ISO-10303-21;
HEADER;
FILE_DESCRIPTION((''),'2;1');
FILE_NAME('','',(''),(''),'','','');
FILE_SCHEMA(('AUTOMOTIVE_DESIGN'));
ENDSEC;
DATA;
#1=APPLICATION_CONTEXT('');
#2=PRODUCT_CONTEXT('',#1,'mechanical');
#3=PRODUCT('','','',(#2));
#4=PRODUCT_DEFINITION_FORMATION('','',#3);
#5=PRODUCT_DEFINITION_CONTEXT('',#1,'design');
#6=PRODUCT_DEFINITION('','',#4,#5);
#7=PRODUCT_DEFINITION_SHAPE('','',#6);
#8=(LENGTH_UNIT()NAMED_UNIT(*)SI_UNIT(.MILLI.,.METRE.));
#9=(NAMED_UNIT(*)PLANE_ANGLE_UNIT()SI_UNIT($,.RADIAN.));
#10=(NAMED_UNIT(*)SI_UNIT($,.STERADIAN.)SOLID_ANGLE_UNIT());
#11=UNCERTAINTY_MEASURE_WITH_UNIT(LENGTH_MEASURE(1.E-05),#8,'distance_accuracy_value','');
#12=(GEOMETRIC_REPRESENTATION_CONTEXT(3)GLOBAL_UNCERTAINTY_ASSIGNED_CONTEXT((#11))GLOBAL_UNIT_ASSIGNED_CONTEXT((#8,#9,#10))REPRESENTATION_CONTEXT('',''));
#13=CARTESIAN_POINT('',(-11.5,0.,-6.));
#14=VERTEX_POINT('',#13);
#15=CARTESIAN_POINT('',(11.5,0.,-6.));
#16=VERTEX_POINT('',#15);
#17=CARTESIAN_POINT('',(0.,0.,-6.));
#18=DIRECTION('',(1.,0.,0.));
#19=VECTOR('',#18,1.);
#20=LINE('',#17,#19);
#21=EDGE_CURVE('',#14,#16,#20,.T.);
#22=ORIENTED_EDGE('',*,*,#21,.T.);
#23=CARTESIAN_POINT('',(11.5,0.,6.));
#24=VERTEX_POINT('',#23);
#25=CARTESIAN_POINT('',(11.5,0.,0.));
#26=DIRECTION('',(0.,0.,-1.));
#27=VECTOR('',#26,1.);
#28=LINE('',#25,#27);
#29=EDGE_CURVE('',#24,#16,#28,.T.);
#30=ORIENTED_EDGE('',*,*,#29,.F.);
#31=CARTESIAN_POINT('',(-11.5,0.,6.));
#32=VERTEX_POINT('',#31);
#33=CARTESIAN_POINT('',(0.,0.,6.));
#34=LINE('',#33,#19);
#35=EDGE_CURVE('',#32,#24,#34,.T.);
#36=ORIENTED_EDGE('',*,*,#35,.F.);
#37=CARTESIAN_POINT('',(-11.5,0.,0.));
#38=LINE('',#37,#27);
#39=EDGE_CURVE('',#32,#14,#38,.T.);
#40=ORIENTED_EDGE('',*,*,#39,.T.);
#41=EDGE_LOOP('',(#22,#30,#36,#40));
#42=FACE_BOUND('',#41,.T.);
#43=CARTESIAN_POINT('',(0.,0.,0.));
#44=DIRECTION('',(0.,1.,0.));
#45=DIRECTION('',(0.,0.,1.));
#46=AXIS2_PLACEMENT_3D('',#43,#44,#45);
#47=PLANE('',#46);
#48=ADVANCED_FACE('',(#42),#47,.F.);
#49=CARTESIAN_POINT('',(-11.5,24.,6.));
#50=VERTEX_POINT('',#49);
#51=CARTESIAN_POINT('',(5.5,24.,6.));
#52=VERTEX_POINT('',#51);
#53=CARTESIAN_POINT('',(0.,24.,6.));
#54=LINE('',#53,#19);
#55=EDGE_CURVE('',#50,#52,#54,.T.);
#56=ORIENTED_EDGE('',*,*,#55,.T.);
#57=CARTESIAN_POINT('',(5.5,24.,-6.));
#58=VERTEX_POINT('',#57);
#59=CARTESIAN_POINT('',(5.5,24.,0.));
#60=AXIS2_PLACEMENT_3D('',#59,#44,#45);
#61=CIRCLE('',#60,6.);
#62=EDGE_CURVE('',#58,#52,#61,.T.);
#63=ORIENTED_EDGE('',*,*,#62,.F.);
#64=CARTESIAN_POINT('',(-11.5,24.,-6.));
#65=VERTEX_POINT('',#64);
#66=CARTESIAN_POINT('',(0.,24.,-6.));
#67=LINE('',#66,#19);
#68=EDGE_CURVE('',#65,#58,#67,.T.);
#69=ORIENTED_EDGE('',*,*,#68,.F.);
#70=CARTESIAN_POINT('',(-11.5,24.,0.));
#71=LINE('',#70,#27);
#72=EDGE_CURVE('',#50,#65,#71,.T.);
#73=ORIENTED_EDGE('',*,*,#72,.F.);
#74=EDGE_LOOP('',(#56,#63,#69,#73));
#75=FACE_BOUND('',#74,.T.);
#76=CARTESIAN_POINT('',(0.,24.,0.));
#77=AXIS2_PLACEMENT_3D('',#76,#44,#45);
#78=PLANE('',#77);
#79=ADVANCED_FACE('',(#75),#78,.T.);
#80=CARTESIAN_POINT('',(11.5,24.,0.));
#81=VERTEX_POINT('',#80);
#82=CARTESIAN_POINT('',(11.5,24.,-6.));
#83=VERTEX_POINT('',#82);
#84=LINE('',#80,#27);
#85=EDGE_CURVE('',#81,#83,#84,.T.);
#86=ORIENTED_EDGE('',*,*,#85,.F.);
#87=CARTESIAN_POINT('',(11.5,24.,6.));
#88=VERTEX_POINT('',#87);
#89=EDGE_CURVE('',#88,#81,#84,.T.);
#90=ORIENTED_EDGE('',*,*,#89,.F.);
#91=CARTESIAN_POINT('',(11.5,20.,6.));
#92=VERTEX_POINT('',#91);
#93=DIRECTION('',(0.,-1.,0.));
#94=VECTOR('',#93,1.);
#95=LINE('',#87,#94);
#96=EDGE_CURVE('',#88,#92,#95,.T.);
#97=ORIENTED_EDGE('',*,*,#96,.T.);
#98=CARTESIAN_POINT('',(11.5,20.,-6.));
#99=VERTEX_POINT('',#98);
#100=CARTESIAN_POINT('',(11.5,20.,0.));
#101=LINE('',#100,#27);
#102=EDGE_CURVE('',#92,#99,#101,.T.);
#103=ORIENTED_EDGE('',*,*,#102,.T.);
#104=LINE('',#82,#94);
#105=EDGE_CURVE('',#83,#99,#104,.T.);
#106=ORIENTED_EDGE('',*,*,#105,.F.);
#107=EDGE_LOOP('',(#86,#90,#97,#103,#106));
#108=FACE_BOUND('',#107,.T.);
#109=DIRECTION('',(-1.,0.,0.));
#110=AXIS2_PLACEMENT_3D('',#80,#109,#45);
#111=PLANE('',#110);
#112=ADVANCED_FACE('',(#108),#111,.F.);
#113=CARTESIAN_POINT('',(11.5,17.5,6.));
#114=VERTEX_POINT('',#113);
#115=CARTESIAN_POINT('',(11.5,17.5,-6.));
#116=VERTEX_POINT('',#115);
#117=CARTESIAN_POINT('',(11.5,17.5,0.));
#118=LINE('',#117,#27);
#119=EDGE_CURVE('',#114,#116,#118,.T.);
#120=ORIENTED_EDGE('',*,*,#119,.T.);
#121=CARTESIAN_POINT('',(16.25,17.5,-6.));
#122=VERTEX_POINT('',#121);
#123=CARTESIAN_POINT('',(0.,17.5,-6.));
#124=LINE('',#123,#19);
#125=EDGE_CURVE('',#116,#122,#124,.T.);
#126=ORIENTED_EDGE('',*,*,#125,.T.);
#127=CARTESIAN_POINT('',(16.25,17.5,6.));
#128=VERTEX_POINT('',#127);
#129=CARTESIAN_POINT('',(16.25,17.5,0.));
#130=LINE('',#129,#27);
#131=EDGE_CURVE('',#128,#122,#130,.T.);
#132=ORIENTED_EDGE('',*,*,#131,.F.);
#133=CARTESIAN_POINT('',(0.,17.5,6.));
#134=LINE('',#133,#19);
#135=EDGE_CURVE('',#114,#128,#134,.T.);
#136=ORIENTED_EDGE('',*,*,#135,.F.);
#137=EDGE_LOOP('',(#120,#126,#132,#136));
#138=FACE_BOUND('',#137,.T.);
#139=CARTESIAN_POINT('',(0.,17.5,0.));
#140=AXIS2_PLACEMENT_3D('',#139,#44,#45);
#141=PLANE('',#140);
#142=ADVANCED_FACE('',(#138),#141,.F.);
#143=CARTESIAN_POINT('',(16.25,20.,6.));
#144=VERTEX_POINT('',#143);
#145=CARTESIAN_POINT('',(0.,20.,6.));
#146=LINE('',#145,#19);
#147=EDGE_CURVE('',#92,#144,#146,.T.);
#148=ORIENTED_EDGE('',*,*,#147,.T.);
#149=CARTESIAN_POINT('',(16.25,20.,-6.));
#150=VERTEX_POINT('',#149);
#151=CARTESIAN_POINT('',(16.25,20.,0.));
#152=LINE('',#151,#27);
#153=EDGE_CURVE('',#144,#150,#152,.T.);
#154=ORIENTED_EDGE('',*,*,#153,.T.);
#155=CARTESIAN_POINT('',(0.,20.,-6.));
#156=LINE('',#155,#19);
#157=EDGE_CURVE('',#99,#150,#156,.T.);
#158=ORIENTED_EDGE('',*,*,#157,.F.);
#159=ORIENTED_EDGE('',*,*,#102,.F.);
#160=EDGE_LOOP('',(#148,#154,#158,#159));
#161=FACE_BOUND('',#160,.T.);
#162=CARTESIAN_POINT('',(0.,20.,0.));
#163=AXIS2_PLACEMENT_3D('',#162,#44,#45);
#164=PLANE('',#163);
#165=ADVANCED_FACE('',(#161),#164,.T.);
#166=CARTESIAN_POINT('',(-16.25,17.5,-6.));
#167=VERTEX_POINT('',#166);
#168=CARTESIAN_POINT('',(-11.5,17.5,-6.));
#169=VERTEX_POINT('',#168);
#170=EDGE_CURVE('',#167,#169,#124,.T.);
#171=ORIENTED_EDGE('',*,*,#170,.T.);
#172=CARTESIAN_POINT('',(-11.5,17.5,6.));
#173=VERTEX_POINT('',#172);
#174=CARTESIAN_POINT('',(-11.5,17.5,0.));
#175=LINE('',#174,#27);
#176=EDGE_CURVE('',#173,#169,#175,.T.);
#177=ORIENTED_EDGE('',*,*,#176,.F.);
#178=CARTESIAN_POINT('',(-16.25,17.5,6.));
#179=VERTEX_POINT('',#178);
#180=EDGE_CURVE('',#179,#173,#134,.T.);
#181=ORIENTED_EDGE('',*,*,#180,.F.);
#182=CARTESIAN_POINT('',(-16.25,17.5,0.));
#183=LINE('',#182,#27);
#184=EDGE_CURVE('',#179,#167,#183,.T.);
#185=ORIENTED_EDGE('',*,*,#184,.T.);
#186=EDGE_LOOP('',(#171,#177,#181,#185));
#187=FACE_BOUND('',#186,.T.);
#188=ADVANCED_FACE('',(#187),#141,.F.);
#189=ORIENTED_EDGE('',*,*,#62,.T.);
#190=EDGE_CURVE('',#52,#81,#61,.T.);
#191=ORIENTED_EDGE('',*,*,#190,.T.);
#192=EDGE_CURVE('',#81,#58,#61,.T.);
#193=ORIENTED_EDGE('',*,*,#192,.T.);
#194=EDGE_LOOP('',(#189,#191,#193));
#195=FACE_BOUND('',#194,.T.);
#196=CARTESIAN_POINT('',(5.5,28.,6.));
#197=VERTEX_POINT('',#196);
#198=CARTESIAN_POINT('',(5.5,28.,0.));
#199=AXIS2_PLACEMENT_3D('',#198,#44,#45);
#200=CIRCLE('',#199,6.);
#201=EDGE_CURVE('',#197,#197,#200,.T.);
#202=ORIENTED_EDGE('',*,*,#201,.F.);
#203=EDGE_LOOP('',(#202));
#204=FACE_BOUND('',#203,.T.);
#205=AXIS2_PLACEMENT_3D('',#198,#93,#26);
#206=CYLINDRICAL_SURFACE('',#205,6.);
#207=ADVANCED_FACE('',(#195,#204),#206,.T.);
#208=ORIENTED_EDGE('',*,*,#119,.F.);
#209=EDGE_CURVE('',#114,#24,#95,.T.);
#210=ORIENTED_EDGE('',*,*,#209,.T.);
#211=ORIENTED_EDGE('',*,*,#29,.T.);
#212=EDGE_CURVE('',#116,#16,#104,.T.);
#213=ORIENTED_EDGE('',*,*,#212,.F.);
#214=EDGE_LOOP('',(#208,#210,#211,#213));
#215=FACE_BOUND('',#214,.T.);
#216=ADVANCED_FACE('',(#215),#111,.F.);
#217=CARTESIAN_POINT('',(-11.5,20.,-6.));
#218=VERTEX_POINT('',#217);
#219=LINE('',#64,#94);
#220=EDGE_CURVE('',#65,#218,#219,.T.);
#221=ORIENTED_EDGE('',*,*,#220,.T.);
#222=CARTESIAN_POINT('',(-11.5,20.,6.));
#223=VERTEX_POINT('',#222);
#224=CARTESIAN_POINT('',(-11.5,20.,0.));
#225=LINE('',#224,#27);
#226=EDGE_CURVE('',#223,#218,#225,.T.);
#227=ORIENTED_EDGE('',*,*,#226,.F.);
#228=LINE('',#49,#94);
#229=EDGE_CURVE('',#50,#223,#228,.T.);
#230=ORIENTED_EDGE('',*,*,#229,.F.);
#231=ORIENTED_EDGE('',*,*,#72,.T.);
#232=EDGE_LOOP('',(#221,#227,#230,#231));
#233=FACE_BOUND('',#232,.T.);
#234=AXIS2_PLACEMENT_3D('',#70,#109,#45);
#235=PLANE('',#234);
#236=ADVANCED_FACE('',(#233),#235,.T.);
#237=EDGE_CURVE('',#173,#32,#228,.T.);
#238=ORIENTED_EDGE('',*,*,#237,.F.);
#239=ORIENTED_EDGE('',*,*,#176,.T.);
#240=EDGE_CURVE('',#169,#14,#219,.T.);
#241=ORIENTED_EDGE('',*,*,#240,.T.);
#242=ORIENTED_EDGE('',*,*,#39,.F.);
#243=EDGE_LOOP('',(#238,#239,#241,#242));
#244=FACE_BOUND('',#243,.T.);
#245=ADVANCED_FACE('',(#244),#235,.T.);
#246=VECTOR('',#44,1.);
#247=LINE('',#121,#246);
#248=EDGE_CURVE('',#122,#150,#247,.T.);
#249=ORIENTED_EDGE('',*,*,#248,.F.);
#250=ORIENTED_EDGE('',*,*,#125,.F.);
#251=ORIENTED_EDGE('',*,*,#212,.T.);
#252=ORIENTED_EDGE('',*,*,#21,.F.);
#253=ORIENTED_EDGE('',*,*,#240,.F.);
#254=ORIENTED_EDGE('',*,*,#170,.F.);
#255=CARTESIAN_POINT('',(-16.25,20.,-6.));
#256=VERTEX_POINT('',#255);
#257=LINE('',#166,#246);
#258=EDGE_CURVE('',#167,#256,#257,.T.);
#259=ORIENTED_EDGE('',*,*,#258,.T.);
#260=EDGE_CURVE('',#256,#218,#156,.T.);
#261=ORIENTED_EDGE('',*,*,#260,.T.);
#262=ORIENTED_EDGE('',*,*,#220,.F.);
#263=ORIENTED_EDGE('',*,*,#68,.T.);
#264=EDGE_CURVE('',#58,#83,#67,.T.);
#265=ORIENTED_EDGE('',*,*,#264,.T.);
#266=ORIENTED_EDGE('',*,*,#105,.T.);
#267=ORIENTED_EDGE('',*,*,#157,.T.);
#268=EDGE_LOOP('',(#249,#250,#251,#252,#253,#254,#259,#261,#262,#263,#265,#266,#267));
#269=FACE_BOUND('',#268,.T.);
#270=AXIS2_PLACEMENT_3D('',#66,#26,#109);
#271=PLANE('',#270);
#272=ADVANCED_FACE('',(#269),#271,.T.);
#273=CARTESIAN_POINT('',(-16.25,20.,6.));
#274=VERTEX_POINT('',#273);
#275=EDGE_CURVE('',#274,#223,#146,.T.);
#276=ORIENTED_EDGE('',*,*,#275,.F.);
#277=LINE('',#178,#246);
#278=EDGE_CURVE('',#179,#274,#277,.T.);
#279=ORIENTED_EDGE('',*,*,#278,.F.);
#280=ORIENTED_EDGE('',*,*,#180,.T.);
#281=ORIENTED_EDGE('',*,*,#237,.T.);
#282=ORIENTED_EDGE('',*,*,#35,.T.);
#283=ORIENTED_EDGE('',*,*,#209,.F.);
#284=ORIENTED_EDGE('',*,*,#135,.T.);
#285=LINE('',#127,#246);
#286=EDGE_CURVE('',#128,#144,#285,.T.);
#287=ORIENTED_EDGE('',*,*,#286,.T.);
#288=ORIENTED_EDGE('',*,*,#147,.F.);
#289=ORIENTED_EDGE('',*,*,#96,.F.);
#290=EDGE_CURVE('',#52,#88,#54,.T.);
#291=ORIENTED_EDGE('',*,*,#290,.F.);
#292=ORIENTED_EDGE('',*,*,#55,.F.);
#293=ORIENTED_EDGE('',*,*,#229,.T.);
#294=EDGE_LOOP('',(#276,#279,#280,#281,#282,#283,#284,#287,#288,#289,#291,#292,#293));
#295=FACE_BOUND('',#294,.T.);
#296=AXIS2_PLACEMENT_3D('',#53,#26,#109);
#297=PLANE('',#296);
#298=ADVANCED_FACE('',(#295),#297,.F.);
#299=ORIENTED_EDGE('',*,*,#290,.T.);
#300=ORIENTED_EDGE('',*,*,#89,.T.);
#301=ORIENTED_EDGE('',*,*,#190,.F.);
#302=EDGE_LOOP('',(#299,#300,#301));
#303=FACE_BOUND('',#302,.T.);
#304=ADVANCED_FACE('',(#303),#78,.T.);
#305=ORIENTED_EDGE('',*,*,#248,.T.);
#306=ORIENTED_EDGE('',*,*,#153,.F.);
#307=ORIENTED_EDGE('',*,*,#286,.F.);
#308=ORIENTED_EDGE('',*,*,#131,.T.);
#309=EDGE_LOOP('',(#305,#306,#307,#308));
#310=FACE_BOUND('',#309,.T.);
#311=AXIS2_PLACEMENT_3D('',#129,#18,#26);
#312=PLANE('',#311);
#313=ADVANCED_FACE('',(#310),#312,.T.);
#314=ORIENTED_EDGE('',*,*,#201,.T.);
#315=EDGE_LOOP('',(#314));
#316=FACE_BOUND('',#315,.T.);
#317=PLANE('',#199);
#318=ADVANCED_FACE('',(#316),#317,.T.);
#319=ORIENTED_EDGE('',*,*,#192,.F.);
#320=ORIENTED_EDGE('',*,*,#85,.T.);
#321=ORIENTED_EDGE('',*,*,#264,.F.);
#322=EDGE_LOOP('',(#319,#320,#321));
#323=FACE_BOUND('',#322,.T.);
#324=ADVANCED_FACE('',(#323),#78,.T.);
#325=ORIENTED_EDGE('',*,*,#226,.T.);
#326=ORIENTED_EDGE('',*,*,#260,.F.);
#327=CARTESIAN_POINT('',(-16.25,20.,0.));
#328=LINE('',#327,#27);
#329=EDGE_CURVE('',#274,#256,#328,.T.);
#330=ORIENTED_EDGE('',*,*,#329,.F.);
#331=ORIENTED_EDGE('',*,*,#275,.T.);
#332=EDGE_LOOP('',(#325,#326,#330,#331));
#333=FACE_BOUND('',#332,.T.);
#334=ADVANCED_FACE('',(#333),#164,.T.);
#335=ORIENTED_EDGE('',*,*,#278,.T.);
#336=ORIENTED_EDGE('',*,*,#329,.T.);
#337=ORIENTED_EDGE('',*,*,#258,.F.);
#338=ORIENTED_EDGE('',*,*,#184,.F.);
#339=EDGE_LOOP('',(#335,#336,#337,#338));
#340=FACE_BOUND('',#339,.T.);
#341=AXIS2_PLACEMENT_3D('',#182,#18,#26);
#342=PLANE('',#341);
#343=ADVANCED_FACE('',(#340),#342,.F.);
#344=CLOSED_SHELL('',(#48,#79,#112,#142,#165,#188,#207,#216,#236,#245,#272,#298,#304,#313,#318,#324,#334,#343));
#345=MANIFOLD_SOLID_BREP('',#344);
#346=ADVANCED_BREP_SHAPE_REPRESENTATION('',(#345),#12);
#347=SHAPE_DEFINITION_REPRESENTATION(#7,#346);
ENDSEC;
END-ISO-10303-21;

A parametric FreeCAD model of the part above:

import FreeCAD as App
import Part
import Sketcher

doc = App.newDocument("Part")
params = doc.addObject("Spreadsheet::Sheet", "Params")
for row, (alias, value) in enumerate([
    ("sketch1_width", "23 mm"),
    ("sketch1_height", "12 mm"),
    ("pad1_length", "24 mm"),
    ("sketch2_diameter", "12 mm"),
    ("pad2_length", "4 mm"),
    ("sketch3_height", "12 mm"),
    ("sketch3_width", "32.5 mm"),
    ("pad3_length", "2.5 mm"),
], start=1):
    params.set(f"A{row}", alias)
    params.set(f"B{row}", "=" + value)
    params.setAlias(f"B{row}", alias)

body = doc.addObject("PartDesign::Body", "Body")

# Sketch on XZ plane
sketch1 = body.newObject("Sketcher::SketchObject", "Sketch")
sketch1.AttachmentSupport = (doc.getObject("XZ_Plane"), [""])
sketch1.MapMode = "FlatFace"
sketch1.addGeometry([
    Part.LineSegment(App.Vector(-12, -6, 0), App.Vector(-12, 6, 0)),
    Part.LineSegment(App.Vector(-12, 6, 0), App.Vector(12, 6, 0)),
    Part.LineSegment(App.Vector(12, 6, 0), App.Vector(12, -6, 0)),
    Part.LineSegment(App.Vector(12, -6, 0), App.Vector(-12, -6, 0)),
], False)
sketch1.addConstraint([
    Sketcher.Constraint("Coincident", 0, 2, 1, 1),
    Sketcher.Constraint("Coincident", 1, 2, 2, 1),
    Sketcher.Constraint("Coincident", 2, 2, 3, 1),
    Sketcher.Constraint("Coincident", 3, 2, 0, 1),
    Sketcher.Constraint("Vertical", 0),
    Sketcher.Constraint("Horizontal", 1),
    Sketcher.Constraint("Vertical", 2),
    Sketcher.Constraint("Horizontal", 3),
    Sketcher.Constraint("Symmetric", 0, 2, 2, 2, -1, 1),
    Sketcher.Constraint("DistanceX", 1, 1, 1, 2, 23.0),
    Sketcher.Constraint("DistanceY", 0, 1, 0, 2, 12.0),
])
sketch1.setExpression("Constraints[9]", "Params.sketch1_width")
sketch1.setExpression("Constraints[10]", "Params.sketch1_height")
pad1 = body.newObject("PartDesign::Pad", "Pad")
pad1.Profile = sketch1
pad1.setExpression("Length", "Params.pad1_length")
pad1.Reversed = True

# Sketch on XZ plane
sketch2 = body.newObject("Sketcher::SketchObject", "Sketch001")
sketch2.AttachmentSupport = (doc.getObject("XZ_Plane"), [""])
sketch2.MapMode = "FlatFace"
sketch2.AttachmentOffset = App.Placement(App.Vector(0, 0, -24), App.Rotation())
sketch2.addGeometry(Part.Circle(App.Vector(6, 0, 0), App.Vector(0, 0, 1), 6), False)
sketch2.addConstraint([
    Sketcher.Constraint("PointOnObject", 0, 3, -1),
    Sketcher.Constraint("Diameter", 0, 12.0),
    Sketcher.Constraint("DistanceX", -1, 1, 0, 3, 5.5),
])
sketch2.setExpression("Constraints[1]", "Params.sketch2_diameter")
pad2 = body.newObject("PartDesign::Pad", "Pad001")
pad2.Profile = sketch2
pad2.setExpression("Length", "Params.pad2_length")
pad2.Reversed = True

# Sketch on XZ plane
sketch3 = body.newObject("Sketcher::SketchObject", "Sketch002")
sketch3.AttachmentSupport = (doc.getObject("XZ_Plane"), [""])
sketch3.MapMode = "FlatFace"
sketch3.AttachmentOffset = App.Placement(App.Vector(0, 0, -20), App.Rotation())
sketch3.addGeometry([
    Part.LineSegment(App.Vector(-16, -6, 0), App.Vector(-16, 6, 0)),
    Part.LineSegment(App.Vector(-16, 6, 0), App.Vector(16, 6, 0)),
    Part.LineSegment(App.Vector(16, 6, 0), App.Vector(16, -6, 0)),
    Part.LineSegment(App.Vector(16, -6, 0), App.Vector(-16, -6, 0)),
], False)
sketch3.addConstraint([
    Sketcher.Constraint("Coincident", 0, 2, 1, 1),
    Sketcher.Constraint("Coincident", 1, 2, 2, 1),
    Sketcher.Constraint("Coincident", 2, 2, 3, 1),
    Sketcher.Constraint("Coincident", 3, 2, 0, 1),
    Sketcher.Constraint("Vertical", 0),
    Sketcher.Constraint("Horizontal", 1),
    Sketcher.Constraint("Vertical", 2),
    Sketcher.Constraint("Horizontal", 3),
    Sketcher.Constraint("Symmetric", 0, 2, 2, 2, -1, 1),
    Sketcher.Constraint("DistanceY", 0, 1, 0, 2, 12.0),
    Sketcher.Constraint("DistanceX", 1, 1, 1, 2, 32.5),
])
sketch3.setExpression("Constraints[9]", "Params.sketch3_height")
sketch3.setExpression("Constraints[10]", "Params.sketch3_width")
pad3 = body.newObject("PartDesign::Pad", "Pad002")
pad3.Profile = sketch3
pad3.setExpression("Length", "Params.pad3_length")

doc.recompute()
